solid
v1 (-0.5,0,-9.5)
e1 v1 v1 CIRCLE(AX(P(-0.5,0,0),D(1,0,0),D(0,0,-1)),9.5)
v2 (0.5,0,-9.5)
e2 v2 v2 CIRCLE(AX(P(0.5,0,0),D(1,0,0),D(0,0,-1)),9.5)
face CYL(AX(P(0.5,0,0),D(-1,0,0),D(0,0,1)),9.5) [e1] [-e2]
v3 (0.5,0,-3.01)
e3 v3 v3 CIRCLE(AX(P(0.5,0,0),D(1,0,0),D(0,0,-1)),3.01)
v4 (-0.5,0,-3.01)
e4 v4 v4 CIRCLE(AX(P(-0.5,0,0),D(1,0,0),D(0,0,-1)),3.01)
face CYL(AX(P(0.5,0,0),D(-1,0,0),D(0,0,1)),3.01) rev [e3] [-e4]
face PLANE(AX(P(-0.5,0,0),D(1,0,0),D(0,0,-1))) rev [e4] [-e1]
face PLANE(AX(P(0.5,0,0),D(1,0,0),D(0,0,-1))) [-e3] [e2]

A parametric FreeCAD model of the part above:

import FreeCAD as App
import Part
import Sketcher

V = App.Vector
Q = App.Units.Quantity

doc = App.newDocument("Part")
params = doc.addObject("Spreadsheet::Sheet", "Params")
for row, (alias, value) in enumerate([
    ("sketch1_diameter", "19 mm"),
    ("sketch1_diameter2", "6.02 mm"),
    ("pad1_length", "0.5 mm"),
    ("pad1_length2", "0.5 mm"),
], start=1):
    params.set(f"A{row}", alias)
    params.set(f"B{row}", "=" + value)
    params.setAlias(f"B{row}", alias)

body = doc.addObject("PartDesign::Body", "Body")

sketch1 = body.newObject("Sketcher::SketchObject", "Sketch")
sketch1.AttachmentSupport = (doc.getObject("YZ_Plane"), [""])
sketch1.MapMode = "FlatFace"
sketch1.addGeometry(Part.Circle(V(0, 0, 0), V(0, 0, 1), 9.5), False)
sketch1.addGeometry(Part.Circle(V(0, 0, 0), V(0, 0, 1), 3), False)
sketch1.addConstraint(Sketcher.Constraint("Coincident", 0, 3, -1, 1))
sketch1.addConstraint(Sketcher.Constraint("Coincident", 1, 3, -1, 1))
sketch1.addConstraint(Sketcher.Constraint("Diameter", 0, Q("19 mm")))
sketch1.addConstraint(Sketcher.Constraint("Diameter", 1, Q("6.02 mm")))
sketch1.setExpression("Constraints[2]", "Params.sketch1_diameter")
sketch1.setExpression("Constraints[3]", "Params.sketch1_diameter2")
pad1 = body.newObject("PartDesign::Pad", "Pad")
pad1.Profile = sketch1
pad1.Type = "TwoLengths"
pad1.setExpression("Length", "Params.pad1_length")
pad1.setExpression("Length2", "Params.pad1_length2")

doc.recompute()
